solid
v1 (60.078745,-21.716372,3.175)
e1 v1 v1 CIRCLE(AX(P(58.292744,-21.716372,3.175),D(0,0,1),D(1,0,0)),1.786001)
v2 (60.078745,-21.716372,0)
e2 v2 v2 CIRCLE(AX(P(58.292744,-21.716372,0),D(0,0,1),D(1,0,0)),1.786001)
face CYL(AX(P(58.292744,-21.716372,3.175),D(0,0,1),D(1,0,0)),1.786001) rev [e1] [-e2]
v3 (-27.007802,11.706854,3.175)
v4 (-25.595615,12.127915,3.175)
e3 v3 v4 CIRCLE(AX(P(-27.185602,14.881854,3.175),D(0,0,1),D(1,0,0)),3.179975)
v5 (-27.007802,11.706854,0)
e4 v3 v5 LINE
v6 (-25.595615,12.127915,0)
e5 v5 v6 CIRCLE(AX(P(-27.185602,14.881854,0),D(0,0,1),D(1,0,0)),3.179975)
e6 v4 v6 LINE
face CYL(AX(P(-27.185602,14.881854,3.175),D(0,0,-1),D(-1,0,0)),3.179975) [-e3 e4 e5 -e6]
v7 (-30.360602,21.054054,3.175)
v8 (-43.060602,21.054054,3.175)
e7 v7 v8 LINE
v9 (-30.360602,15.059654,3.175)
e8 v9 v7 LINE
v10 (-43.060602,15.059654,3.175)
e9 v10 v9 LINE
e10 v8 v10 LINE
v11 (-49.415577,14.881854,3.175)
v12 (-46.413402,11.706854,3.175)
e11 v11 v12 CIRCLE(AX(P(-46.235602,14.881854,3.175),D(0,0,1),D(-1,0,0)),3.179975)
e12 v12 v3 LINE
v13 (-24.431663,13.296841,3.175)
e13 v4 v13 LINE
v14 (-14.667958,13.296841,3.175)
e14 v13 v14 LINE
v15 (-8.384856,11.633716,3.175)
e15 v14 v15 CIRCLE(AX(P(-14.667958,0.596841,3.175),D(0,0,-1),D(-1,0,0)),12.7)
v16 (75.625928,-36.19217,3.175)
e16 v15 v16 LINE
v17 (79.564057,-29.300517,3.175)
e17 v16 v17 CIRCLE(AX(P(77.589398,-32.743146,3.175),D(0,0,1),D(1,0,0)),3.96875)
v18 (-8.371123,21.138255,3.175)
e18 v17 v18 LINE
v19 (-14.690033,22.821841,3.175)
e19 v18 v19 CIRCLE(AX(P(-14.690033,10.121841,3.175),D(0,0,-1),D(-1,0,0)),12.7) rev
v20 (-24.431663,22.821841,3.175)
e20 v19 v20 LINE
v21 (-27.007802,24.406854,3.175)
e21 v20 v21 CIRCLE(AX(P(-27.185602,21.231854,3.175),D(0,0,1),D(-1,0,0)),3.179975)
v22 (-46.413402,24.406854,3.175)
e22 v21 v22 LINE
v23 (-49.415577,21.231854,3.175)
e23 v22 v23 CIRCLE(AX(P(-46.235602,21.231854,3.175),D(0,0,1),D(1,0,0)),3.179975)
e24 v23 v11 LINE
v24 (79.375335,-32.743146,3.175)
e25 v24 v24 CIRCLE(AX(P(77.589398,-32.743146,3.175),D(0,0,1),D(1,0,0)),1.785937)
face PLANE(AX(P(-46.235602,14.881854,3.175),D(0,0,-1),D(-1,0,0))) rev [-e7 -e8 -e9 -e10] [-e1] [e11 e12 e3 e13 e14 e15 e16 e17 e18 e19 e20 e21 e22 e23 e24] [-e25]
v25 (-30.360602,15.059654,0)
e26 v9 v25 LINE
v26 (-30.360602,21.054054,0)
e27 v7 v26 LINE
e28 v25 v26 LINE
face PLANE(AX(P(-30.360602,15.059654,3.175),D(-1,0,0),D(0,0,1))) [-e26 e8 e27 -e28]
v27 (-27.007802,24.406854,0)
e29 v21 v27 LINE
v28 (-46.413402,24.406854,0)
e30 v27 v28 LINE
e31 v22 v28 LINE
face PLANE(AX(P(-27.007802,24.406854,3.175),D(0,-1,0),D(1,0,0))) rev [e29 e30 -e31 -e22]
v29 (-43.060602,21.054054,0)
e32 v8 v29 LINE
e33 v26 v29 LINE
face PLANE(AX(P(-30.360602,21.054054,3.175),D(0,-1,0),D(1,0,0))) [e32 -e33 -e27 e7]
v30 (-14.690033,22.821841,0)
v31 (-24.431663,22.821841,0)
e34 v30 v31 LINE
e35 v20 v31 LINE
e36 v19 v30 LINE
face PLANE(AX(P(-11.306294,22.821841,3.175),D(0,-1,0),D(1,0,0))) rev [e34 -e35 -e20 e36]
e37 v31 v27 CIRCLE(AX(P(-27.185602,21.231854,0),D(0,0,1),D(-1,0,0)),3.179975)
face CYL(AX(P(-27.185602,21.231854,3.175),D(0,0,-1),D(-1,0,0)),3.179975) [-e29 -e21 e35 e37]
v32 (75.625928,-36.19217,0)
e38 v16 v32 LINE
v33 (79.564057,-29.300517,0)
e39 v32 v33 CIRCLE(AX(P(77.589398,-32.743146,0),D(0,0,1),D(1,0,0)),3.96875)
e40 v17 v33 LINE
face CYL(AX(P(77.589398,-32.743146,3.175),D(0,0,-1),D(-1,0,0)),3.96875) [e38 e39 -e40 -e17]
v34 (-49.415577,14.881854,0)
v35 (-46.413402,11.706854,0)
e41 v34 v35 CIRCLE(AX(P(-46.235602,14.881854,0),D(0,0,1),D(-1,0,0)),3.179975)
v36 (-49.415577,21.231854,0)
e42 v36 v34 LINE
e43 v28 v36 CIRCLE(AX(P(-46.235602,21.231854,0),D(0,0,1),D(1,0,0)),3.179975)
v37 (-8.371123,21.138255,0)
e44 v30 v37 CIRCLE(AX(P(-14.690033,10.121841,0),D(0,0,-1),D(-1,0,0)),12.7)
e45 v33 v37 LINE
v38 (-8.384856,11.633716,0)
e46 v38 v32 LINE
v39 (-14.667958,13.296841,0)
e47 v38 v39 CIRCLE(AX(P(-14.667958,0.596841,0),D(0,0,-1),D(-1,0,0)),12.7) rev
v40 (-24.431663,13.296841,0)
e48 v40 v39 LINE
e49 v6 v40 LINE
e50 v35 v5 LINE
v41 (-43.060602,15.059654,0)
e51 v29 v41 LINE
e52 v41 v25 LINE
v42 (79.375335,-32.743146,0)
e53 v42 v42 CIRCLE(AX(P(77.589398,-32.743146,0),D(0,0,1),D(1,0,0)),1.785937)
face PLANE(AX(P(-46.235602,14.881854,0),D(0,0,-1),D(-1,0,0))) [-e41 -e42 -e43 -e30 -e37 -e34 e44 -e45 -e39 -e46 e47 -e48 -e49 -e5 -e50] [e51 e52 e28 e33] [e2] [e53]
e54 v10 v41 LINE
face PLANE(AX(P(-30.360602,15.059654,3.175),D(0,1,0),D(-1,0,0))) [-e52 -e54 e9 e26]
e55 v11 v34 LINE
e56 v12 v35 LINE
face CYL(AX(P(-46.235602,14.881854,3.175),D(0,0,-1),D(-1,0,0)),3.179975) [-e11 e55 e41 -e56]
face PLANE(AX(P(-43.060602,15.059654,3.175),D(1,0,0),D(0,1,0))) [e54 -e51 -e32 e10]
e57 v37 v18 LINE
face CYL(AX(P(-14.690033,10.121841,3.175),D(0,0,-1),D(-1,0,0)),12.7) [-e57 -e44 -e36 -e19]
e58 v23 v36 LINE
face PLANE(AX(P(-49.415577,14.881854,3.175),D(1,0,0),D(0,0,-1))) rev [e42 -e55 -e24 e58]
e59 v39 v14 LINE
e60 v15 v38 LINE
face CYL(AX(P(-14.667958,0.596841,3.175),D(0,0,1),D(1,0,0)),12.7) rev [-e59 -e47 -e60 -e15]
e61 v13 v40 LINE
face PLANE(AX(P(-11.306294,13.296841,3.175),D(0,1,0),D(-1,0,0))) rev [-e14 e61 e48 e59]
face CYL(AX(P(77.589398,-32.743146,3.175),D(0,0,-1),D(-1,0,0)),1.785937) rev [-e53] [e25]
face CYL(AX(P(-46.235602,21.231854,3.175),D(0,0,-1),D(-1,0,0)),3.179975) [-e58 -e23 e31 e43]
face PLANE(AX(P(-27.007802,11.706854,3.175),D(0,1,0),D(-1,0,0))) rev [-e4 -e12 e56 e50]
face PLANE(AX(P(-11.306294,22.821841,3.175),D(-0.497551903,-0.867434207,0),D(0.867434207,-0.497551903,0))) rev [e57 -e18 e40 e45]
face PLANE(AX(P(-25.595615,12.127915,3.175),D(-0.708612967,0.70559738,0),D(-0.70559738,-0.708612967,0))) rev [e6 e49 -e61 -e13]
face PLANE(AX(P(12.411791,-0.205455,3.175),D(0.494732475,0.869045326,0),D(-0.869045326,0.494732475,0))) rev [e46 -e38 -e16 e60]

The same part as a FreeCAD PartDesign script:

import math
import FreeCAD as App
import Part
import Sketcher
Q = App.Units.Quantity


def edges_at(feature, points):
    """Names of the edges that pass closest to the given points."""
    edges = feature.Shape.Edges
    near = lambda p: min(range(len(edges)), key=lambda i: edges[i].distToShape(Part.Vertex(*p))[0])
    return sorted({f"Edge{near(p) + 1}" for p in points})


def add_polygon(sketch, points):
    """Adds a closed chain of lines whose ends are joined by coincident constraints."""
    first, n = sketch.GeometryCount, len(points)
    for a, b in zip(points, points[1:] + points[:1]):
        sketch.addGeometry(Part.LineSegment(App.Vector(*a, 0), App.Vector(*b, 0)), False)
    for i in range(n):
        sketch.addConstraint(Sketcher.Constraint("Coincident", first + i, 2, first + (i + 1) % n, 1))

doc = App.newDocument("Part")
body = doc.addObject("PartDesign::Body", "Body")

sketch1 = body.newObject("Sketcher::SketchObject", "Sketch")
sketch1.AttachmentSupport = (doc.getObject("XY_Plane"), [""])
sketch1.MapMode = "FlatFace"
sketch1.addGeometry(Part.LineSegment(App.Vector(-25.595615, 12.127915, 0), App.Vector(-24.431663, 13.296841, 0)), False)
sketch1.addGeometry(Part.LineSegment(App.Vector(-24.431663, 13.296841, 0), App.Vector(-11.306294, 13.296841, 0)), False)
sketch1.addGeometry(Part.LineSegment(App.Vector(-11.306294, 13.296841, 0), App.Vector(6.117359, 3.377856, 0)), False)
sketch1.addGeometry(Part.LineSegment(App.Vector(6.117359, 3.377856, 0), App.Vector(12.411791, -0.205455, 0)), False)
sketch1.addGeometry(Part.LineSegment(App.Vector(12.411791, -0.205455, 0), App.Vector(75.625928, -36.19217, 0)), False)
sketch1.addGeometry(Part.ArcOfCircle(Part.Circle(App.Vector(77.589398, -32.743146, 0), App.Vector(0, 0, 1), 3.96875), math.radians(-119.652111), math.radians(60.161833)), False)
sketch1.addGeometry(Part.LineSegment(App.Vector(79.564057, -29.300517, 0), App.Vector(-11.306294, 22.821841, 0)), False)
sketch1.addGeometry(Part.LineSegment(App.Vector(-11.306294, 22.821841, 0), App.Vector(-24.431663, 22.821841, 0)), False)
sketch1.addGeometry(Part.ArcOfCircle(Part.Circle(App.Vector(-27.185602, 21.231854, 0), App.Vector(0, 0, 1), 3.179975), math.radians(30), math.radians(86.794784)), False)
sketch1.addGeometry(Part.LineSegment(App.Vector(-27.007802, 24.406854, 0), App.Vector(-46.413402, 24.406854, 0)), False)
sketch1.addGeometry(Part.ArcOfCircle(Part.Circle(App.Vector(-46.235602, 21.231854, 0), App.Vector(0, 0, 1), 3.179975), math.radians(93.205216), math.radians(180)), False)
sketch1.addGeometry(Part.LineSegment(App.Vector(-49.415577, 21.231854, 0), App.Vector(-49.415577, 14.881854, 0)), False)
sketch1.addGeometry(Part.ArcOfCircle(Part.Circle(App.Vector(-46.235602, 14.881854, 0), App.Vector(0, 0, 1), 3.179975), math.radians(180), math.radians(266.794784)), False)
sketch1.addGeometry(Part.LineSegment(App.Vector(-46.413402, 11.706854, 0), App.Vector(-27.007802, 11.706854, 0)), False)
sketch1.addGeometry(Part.ArcOfCircle(Part.Circle(App.Vector(-27.185602, 14.881854, 0), App.Vector(0, 0, 1), 3.179974), math.radians(-86.794784), math.radians(-60)), False)
sketch1.addGeometry(Part.Circle(App.Vector(77.589398, -32.743146, 0), App.Vector(0, 0, 1), 1.785937), False)
add_polygon(sketch1, [(-30.360602, 15.059654), (-43.060602, 15.059654), (-43.060602, 21.054054), (-30.360602, 21.054054)])
sketch1.addConstraint([
    Sketcher.Constraint("Coincident", 0, 2, 1, 1),
    Sketcher.Constraint("Coincident", 1, 2, 2, 1),
    Sketcher.Constraint("Coincident", 2, 2, 3, 1),
    Sketcher.Constraint("Coincident", 3, 2, 4, 1),
    Sketcher.Constraint("Tangent", 4, 2, 5, 1),
    Sketcher.Constraint("Tangent", 5, 2, 6, 1),
    Sketcher.Constraint("Coincident", 6, 2, 7, 1),
    Sketcher.Constraint("Coincident", 7, 2, 8, 1),
    Sketcher.Constraint("Coincident", 8, 2, 9, 1),
    Sketcher.Constraint("Coincident", 9, 2, 10, 1),
    Sketcher.Constraint("Tangent", 10, 2, 11, 1),
    Sketcher.Constraint("Tangent", 11, 2, 12, 1),
    Sketcher.Constraint("Coincident", 12, 2, 13, 1),
    Sketcher.Constraint("Coincident", 13, 2, 14, 1),
    Sketcher.Constraint("Coincident", 14, 2, 0, 1),
    Sketcher.Constraint("Horizontal", 1),
    Sketcher.Constraint("Horizontal", 7),
    Sketcher.Constraint("Horizontal", 9),
    Sketcher.Constraint("Vertical", 11),
    Sketcher.Constraint("Horizontal", 13),
    Sketcher.Constraint("Horizontal", 16),
    Sketcher.Constraint("Vertical", 17),
    Sketcher.Constraint("Horizontal", 18),
    Sketcher.Constraint("Vertical", 19),
    Sketcher.Constraint("Coincident", 15, 3, 5, 3),
    Sketcher.Constraint("Equal", 8, 10),
    Sketcher.Constraint("Equal", 10, 12),
    Sketcher.Constraint("Equal", 12, 14),
    Sketcher.Constraint("Parallel", 2, 3),
    Sketcher.Constraint("Parallel", 3, 4),
    Sketcher.Constraint("Horizontal", 8, 3, 10, 3),
    Sketcher.Constraint("Horizontal", 12, 3, 14, 3),
    Sketcher.Constraint("Vertical", 8, 3, 14, 3),
    Sketcher.Constraint("Vertical", 1, 2, 6, 2),
    Sketcher.Constraint("Vertical", 0, 2, 7, 2),
    Sketcher.Constraint("Vertical", 9, 2, 12, 2),
    Sketcher.Constraint("Diameter", 15, Q("0.140625 in")),
    Sketcher.Constraint("DistanceX", 16, 2, 16, 1, Q("0.5 in")),
    Sketcher.Constraint("Radius", 5, Q("0.15625 in")),
    Sketcher.Constraint("DistanceY", 11, 2, 11, 1, Q("0.25 in")),
    Sketcher.Constraint("DistanceY", 12, 2, 9, 2, Q("0.5 in")),
    Sketcher.Constraint("DistanceX", 9, 2, 9, 1, Q("0.764 in")),
    Sketcher.Constraint("DistanceY", 17, 1, 17, 2, Q("0.236 in")),
    Sketcher.Constraint("DistanceX", 10, 3, 8, 3, Q("0.75 in")),
    Sketcher.Constraint("DistanceX", 8, 3, 5, 3, Q("4.125 in")),
    Sketcher.Constraint("DistanceY", 5, 3, 8, 3, Q("2.125 in")),
    Sketcher.Constraint("DistanceY", 1, 2, 6, 2, Q("0.375 in")),
    Sketcher.Constraint("DistanceX", 12, 3, 16, 2, Q("0.125 in")),
    Sketcher.Constraint("DistanceY", 12, 3, 16, 2, Q("0.007 in")),
    Sketcher.Constraint("DistanceY", 4, 2, 3, 2, Q("1.4167998 in")),
    Sketcher.Constraint("DistanceX", 1, 1, 1, 2, 13.125369),
    Sketcher.Constraint("Distance", 2, 20.049188),
    Sketcher.Constraint("Distance", 6, 104.757629),
    Sketcher.Constraint("DistanceY", -1, 1, 0, 2, 13.296841),
    Sketcher.Constraint("DistanceX", -1, 1, 2, 2, 6.117359),
    Sketcher.Constraint("DistanceY", 13, 2, 14, 2, 0.421061),
])
pad1 = body.newObject("PartDesign::Pad", "Pad")
pad1.Profile = sketch1
pad1.Length = Q("0.125 in")
doc.recompute()

fillet = body.newObject("PartDesign::Fillet", "Fillet")
fillet.Base = (pad1, edges_at(pad1, [(-11.306, 22.822, 1.587), (-11.306, 13.297, 1.587)]))
fillet.Radius = Q("0.5 in")

sketch2 = body.newObject("Sketcher::SketchObject", "Sketch001")
sketch2.AttachmentSupport = (doc.getObject("XY_Plane"), [""])
sketch2.MapMode = "FlatFace"
sketch2.AttachmentOffset = App.Placement(App.Vector(0, 0, 0.125 * 25.4), App.Rotation())
sketch2.addGeometry(Part.Circle(App.Vector(58.292744, -21.716372, 0), App.Vector(0, 0, 1), 1.786001), False)
sketch2.addConstraint([
    Sketcher.Constraint("Diameter", 0, 3.572002),
    Sketcher.Constraint("DistanceY", 0, 3, -1, 1, 21.716372),
    Sketcher.Constraint("DistanceX", -1, 1, 0, 3, 58.292744),
])
doc.recompute()
hole = body.newObject("PartDesign::Hole", "Hole")
hole.Profile = sketch2
hole.ThreadType = "None"
hole.Diameter = 3.572002
hole.DepthType = "ThroughAll"

doc.recompute()
